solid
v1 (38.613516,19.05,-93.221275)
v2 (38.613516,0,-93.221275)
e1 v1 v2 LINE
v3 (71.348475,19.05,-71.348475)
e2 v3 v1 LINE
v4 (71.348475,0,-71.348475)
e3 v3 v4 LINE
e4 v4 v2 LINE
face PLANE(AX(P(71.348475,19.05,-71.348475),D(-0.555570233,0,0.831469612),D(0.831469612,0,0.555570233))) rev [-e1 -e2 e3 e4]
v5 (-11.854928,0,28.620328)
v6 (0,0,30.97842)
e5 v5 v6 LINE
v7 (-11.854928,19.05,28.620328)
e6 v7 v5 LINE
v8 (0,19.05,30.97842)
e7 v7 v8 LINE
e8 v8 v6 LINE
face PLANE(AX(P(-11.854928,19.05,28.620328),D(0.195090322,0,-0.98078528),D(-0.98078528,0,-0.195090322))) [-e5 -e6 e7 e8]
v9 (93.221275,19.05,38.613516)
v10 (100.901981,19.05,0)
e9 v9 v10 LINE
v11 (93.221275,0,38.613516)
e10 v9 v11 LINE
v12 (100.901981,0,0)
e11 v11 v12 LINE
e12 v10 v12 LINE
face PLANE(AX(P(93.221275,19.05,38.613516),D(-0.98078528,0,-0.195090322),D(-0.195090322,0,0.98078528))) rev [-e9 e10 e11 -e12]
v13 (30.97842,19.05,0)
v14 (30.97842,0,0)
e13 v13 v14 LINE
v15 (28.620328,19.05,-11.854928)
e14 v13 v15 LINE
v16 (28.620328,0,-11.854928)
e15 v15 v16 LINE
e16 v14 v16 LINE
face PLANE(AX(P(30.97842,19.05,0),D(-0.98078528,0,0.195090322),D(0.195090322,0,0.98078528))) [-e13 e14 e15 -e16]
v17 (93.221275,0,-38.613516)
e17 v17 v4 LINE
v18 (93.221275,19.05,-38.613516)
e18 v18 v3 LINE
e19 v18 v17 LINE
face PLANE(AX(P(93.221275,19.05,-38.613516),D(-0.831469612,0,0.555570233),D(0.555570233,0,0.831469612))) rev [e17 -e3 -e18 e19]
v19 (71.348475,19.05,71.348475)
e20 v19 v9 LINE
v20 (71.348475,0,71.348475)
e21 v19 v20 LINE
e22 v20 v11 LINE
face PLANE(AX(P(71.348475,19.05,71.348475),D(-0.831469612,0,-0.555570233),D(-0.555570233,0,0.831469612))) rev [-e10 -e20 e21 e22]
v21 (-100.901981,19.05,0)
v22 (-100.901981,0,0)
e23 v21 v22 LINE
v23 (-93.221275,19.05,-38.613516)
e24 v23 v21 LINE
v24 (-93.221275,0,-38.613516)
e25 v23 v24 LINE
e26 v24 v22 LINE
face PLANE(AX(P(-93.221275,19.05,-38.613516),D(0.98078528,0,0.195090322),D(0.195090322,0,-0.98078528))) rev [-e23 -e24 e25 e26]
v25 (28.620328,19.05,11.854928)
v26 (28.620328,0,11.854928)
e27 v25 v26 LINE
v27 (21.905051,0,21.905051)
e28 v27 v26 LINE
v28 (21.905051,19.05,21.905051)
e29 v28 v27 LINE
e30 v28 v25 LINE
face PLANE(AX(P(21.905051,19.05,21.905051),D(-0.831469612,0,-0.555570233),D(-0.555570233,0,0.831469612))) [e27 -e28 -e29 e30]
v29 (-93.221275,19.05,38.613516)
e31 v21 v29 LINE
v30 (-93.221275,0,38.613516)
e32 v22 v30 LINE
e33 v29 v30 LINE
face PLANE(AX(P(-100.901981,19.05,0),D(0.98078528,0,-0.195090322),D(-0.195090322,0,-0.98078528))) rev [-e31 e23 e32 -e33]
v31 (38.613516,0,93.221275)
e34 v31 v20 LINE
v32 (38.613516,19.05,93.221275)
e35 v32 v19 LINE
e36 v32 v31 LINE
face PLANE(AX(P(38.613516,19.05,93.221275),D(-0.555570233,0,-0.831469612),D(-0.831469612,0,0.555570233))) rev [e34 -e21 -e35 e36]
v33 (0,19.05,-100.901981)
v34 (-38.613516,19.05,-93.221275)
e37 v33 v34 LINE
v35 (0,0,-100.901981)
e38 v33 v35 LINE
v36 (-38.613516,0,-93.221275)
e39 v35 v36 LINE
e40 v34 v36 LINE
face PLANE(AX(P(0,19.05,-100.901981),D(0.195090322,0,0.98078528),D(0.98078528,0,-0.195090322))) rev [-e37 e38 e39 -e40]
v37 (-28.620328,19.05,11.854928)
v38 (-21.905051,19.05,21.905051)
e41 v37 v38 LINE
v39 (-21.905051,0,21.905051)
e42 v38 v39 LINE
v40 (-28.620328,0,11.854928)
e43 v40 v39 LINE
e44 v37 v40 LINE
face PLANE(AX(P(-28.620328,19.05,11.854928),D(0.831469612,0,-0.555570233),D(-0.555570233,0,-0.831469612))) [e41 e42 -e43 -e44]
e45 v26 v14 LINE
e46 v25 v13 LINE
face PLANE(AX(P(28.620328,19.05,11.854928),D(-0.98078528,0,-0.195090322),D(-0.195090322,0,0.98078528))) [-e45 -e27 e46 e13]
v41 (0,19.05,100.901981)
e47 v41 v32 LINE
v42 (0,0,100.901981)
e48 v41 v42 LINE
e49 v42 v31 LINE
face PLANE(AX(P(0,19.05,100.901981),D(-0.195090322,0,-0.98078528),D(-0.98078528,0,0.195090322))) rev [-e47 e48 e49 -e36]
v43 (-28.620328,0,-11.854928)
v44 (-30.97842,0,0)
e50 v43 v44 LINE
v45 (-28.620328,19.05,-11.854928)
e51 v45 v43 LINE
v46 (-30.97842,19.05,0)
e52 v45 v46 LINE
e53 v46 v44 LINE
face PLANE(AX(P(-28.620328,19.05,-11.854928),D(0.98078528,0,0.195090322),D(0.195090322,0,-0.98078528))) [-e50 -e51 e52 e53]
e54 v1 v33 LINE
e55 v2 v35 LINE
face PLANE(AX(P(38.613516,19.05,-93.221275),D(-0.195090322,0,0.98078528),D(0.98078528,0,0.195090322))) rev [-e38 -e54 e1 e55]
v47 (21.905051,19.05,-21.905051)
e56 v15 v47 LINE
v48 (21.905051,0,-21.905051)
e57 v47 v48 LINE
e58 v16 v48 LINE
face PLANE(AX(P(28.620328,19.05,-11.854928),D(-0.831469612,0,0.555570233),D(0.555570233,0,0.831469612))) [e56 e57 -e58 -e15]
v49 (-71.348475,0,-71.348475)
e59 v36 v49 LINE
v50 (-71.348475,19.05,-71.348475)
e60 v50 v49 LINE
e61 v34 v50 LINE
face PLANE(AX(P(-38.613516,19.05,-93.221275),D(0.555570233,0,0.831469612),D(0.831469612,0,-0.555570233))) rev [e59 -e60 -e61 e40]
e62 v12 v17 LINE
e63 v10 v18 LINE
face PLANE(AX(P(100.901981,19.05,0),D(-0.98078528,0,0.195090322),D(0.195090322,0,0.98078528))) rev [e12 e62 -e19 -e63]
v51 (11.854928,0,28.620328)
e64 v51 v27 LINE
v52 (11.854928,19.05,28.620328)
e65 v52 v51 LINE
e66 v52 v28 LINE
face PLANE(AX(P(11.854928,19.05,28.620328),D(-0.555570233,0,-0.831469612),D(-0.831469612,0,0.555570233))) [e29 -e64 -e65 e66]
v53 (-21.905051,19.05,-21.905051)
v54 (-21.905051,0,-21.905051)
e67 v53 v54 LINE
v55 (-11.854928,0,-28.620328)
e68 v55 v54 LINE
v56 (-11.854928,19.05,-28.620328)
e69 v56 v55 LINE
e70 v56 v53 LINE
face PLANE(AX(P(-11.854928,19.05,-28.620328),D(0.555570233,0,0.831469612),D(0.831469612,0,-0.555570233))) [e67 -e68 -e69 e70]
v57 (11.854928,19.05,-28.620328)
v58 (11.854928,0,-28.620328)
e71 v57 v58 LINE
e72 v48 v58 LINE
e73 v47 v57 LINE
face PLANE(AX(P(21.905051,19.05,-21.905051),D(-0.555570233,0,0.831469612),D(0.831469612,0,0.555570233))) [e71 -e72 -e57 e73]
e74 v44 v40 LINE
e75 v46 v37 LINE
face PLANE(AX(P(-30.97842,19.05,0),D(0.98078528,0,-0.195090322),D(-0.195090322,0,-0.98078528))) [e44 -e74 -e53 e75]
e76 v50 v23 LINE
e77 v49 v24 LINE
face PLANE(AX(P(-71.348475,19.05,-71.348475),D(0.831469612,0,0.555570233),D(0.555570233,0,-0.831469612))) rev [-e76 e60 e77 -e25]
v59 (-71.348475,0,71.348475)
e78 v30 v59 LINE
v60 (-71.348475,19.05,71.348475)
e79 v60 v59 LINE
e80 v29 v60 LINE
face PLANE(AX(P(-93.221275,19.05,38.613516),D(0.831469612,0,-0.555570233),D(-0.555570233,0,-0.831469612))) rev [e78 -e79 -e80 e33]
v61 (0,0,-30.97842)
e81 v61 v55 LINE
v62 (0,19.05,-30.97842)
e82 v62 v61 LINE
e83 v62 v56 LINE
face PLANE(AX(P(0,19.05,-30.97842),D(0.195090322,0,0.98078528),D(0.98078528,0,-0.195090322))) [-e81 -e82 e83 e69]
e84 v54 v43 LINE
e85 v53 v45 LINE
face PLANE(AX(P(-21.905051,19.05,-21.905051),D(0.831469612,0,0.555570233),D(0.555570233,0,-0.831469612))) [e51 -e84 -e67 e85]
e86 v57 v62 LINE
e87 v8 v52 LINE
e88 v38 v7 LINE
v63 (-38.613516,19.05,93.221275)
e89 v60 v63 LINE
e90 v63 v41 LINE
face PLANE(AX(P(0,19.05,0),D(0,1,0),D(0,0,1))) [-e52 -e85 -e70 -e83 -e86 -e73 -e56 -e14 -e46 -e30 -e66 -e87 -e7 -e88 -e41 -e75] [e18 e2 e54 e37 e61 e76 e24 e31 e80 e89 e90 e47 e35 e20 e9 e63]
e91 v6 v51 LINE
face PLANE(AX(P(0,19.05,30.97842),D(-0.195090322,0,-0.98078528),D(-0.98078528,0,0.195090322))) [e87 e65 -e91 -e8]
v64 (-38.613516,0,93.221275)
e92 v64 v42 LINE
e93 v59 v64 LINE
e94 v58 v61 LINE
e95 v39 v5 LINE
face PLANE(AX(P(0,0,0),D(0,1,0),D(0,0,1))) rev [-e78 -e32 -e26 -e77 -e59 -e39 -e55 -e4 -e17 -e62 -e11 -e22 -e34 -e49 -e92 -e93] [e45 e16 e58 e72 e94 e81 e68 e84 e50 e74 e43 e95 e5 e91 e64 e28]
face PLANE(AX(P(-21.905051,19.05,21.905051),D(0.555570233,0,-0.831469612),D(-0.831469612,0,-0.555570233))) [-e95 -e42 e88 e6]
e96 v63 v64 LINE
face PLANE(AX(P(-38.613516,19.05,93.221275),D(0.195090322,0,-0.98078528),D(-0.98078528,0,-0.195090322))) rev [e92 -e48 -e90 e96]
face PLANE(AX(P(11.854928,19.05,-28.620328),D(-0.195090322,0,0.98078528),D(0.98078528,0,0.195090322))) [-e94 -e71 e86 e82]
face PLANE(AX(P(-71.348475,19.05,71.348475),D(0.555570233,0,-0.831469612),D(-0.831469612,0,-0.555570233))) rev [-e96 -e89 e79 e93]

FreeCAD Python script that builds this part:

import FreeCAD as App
import Part
import Sketcher
from FreeCAD import Vector
Q = App.Units.Quantity


def add_polygon(sketch, points):
    """Adds a closed chain of lines whose ends are joined by coincident constraints."""
    first, n = sketch.GeometryCount, len(points)
    for a, b in zip(points, points[1:] + points[:1]):
        sketch.addGeometry(Part.LineSegment(App.Vector(*a, 0), App.Vector(*b, 0)), False)
    for i in range(n):
        sketch.addConstraint(Sketcher.Constraint("Coincident", first + i, 2, first + (i + 1) % n, 1))

doc = App.newDocument("Part")
body = doc.addObject("PartDesign::Body", "Body")

# Sketch on XZ plane
sketch1 = body.newObject("Sketcher::SketchObject", "Sketch")
sketch1.AttachmentSupport = (doc.getObject("XZ_Plane"), [""])
sketch1.MapMode = "FlatFace"
add_polygon(sketch1, [(101, 0), (93, -39), (71, -71), (39, -93), (0, -101), (-39, -93), (-71, -71), (-93, -39), (-101, 0), (-93, 39), (-71, 71), (-39, 93), (0, 101), (39, 93), (71, 71), (93, 39)])  # lines 0-15
add_polygon(sketch1, [(29, -12), (31, 0), (29, 12), (22, 22), (12, 29), (0, 31), (-12, 29), (-22, 22), (-29, 12), (-31, 0), (-29, -12), (-22, -22), (-12, -29), (0, -31), (12, -29), (22, -22)])  # lines 16-31
sketch1.addConstraint([
    Sketcher.Constraint("Symmetric", 0, 2, 8, 2, -1, 1),
    Sketcher.Constraint("Symmetric", 1, 2, 9, 2, -1, 1),
    Sketcher.Constraint("Symmetric", 2, 2, 10, 2, -1, 1),
    Sketcher.Constraint("Symmetric", 3, 2, 11, 2, -1, 1),
    Sketcher.Constraint("Symmetric", 4, 2, 12, 2, -1, 1),
    Sketcher.Constraint("Symmetric", 5, 2, 13, 2, -1, 1),
    Sketcher.Constraint("Symmetric", 6, 2, 14, 2, -1, 1),
    Sketcher.Constraint("Symmetric", 7, 2, 15, 2, -1, 1),
    Sketcher.Constraint("Symmetric", 16, 2, 24, 2, -1, 1),
    Sketcher.Constraint("Symmetric", 17, 2, 25, 2, -1, 1),
    Sketcher.Constraint("Symmetric", 18, 2, 26, 2, -1, 1),
    Sketcher.Constraint("Symmetric", 19, 2, 27, 2, -1, 1),
    Sketcher.Constraint("Symmetric", 20, 2, 28, 2, -1, 1),
    Sketcher.Constraint("Symmetric", 21, 2, 29, 2, -1, 1),
    Sketcher.Constraint("Symmetric", 22, 2, 30, 2, -1, 1),
    Sketcher.Constraint("Symmetric", 23, 2, 31, 2, -1, 1),
    Sketcher.Constraint("Symmetric", 2, 2, 4, 2, -2),
    Sketcher.Constraint("Symmetric", 1, 2, 5, 2, -2),
    Sketcher.Constraint("Symmetric", 0, 2, 6, 2, -2),
    Sketcher.Constraint("Symmetric", 19, 2, 21, 2, -2),
    Sketcher.Constraint("Symmetric", 18, 2, 22, 2, -2),
    Sketcher.Constraint("Symmetric", 17, 2, 23, 2, -2),
    Sketcher.Constraint("PointOnObject", 3, 2, -2),
    Sketcher.Constraint("PointOnObject", 7, 2, -1),
    Sketcher.Constraint("PointOnObject", 16, 2, -1),
    Sketcher.Constraint("PointOnObject", 20, 2, -2),
    Sketcher.Constraint("Perpendicular", 0, 4),
    Sketcher.Constraint("Perpendicular", 1, 5),
    Sketcher.Constraint("Perpendicular", 12, 16),
    Sketcher.Constraint("Parallel", 14, 18),
    Sketcher.Constraint("Parallel", 13, 19),
    Sketcher.Constraint("Perpendicular", 16, 20),
    Sketcher.Constraint("Equal", 0, 1),
    Sketcher.Constraint("Equal", 1, 2),
    Sketcher.Constraint("Equal", 2, 3),
    Sketcher.Constraint("Equal", 17, 18),
    Sketcher.Constraint("Equal", 18, 19),
    Sketcher.Constraint("Equal", 19, 20),
    Sketcher.Constraint("Distance", 0, Q("1.55 in")),
    Sketcher.Constraint("Angle", 0, Q("-101.25 deg")),
    Sketcher.Constraint("Angle", 1, Q("-123.75 deg")),
    Sketcher.Constraint("DistanceX", 19, 2, 17, 2, 16.7654),
])
pad1 = body.newObject("PartDesign::Pad", "Pad")
pad1.Profile = sketch1
pad1.Length = Q("0.75 in")
pad1.Reversed = True

doc.recompute()
